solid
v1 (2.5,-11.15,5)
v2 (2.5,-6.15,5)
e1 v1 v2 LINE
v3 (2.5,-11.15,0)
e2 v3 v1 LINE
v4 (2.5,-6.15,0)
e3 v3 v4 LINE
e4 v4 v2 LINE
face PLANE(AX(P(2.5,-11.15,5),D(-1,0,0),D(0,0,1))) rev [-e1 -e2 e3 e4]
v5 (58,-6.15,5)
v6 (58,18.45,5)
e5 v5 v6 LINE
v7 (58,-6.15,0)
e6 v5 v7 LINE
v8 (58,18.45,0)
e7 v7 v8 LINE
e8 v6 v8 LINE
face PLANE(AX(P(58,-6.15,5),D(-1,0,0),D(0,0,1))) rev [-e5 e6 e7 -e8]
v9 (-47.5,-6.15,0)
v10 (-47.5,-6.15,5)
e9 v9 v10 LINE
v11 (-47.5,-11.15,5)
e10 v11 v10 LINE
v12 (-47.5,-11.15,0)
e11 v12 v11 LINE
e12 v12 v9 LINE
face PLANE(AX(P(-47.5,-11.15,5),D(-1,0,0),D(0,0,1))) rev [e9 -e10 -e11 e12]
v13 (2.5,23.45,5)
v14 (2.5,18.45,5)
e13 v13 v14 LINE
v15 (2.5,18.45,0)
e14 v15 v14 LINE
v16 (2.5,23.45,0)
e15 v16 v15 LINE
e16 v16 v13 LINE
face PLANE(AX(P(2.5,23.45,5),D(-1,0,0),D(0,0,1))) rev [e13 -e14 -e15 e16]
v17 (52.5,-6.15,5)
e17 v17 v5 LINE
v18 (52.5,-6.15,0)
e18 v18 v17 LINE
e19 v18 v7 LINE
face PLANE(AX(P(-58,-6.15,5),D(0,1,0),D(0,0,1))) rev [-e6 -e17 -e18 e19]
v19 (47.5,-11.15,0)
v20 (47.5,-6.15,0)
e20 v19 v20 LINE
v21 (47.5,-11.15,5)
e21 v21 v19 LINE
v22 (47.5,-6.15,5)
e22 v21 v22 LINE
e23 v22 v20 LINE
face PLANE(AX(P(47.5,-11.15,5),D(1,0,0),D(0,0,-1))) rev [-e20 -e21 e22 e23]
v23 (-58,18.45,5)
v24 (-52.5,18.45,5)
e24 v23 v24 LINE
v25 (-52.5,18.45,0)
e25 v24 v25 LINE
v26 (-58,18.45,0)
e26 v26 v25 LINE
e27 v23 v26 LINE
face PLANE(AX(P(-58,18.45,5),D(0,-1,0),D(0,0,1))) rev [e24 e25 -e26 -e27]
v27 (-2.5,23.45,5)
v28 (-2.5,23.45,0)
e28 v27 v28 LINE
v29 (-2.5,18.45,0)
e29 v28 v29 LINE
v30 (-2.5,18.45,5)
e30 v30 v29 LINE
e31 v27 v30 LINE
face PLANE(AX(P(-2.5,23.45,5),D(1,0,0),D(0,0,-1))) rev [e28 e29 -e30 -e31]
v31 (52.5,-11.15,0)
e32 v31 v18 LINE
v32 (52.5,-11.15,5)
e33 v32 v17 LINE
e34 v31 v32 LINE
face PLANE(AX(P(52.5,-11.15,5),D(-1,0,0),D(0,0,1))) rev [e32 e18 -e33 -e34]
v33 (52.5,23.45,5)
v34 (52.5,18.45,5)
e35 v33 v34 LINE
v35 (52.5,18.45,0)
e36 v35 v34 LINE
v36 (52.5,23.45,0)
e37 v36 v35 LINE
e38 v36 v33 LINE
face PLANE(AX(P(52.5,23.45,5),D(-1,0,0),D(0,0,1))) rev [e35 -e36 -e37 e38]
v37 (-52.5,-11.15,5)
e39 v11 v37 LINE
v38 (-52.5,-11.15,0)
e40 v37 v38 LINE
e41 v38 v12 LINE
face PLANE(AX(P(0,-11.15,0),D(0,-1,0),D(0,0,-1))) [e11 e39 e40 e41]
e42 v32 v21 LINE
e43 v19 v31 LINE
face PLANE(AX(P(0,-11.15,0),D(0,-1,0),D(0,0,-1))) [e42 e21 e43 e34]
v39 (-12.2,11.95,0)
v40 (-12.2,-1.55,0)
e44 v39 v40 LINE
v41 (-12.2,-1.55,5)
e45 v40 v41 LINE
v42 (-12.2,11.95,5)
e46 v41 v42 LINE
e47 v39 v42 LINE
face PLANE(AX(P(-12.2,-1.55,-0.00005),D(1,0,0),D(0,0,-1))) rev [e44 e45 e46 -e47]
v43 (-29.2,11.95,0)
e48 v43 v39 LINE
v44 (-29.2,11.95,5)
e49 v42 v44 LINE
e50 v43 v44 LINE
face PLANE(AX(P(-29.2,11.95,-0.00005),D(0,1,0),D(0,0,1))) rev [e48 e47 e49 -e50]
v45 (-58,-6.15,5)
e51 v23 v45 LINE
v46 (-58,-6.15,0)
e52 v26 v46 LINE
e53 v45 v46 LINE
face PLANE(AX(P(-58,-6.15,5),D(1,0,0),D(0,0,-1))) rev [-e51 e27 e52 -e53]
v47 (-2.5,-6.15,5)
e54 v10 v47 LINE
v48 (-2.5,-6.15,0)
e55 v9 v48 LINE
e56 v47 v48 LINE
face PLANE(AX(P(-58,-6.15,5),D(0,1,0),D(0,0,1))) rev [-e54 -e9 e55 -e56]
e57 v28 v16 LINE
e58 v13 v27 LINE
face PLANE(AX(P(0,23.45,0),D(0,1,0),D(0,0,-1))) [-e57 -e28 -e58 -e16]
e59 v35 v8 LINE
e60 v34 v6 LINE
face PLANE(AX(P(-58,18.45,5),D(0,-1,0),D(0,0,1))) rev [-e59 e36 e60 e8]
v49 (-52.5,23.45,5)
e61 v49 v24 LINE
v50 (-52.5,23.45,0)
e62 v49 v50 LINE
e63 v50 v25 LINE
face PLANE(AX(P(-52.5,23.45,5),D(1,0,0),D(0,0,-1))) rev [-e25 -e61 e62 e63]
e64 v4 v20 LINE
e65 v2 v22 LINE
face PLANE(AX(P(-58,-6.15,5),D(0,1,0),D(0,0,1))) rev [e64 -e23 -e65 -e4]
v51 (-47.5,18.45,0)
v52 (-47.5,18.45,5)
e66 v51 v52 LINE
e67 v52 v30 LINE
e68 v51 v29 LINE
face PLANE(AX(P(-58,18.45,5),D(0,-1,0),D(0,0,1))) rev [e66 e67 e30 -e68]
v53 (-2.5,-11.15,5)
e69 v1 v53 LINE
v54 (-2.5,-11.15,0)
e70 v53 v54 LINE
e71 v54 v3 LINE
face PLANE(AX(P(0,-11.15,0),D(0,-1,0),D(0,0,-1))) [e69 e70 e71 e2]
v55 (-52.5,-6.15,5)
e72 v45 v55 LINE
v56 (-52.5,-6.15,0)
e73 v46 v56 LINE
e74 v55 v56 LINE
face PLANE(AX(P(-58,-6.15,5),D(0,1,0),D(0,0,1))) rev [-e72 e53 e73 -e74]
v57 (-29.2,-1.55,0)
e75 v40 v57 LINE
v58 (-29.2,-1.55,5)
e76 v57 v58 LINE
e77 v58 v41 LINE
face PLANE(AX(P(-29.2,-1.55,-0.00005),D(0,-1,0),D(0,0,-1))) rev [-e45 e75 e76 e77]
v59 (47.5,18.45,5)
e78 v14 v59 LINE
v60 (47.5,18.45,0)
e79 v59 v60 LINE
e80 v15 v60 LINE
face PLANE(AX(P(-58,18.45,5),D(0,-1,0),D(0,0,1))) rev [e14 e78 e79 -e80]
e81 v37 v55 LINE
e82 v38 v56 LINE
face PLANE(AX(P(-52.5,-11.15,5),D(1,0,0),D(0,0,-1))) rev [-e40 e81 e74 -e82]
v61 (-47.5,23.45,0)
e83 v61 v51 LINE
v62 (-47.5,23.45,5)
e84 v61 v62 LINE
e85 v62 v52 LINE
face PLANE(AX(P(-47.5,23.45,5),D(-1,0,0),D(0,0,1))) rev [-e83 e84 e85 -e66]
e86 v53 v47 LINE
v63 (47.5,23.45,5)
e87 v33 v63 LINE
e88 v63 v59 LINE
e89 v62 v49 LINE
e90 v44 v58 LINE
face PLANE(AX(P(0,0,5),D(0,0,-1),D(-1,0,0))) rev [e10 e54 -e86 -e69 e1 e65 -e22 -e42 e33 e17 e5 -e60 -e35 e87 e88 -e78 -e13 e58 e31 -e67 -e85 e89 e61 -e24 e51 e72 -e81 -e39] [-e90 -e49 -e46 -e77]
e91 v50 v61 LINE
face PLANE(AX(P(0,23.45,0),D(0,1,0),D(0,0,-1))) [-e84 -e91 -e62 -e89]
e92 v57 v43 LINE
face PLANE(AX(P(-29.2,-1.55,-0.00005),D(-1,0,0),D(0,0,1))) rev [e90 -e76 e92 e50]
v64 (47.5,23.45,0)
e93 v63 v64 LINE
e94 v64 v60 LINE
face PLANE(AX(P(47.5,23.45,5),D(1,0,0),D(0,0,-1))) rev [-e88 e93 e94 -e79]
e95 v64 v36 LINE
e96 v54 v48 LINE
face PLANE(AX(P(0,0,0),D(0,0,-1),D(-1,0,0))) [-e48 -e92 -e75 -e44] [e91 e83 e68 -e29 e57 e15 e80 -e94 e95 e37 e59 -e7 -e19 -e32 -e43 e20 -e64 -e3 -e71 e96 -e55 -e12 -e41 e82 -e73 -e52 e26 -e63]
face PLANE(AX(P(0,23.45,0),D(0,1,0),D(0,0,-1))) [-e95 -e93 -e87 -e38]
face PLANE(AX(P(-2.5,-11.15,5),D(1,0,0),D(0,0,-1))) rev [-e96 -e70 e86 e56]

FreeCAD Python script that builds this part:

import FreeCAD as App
import Part
import Sketcher

V = App.Vector
Q = App.Units.Quantity


def add_polygon(sketch, points):
    """Adds a closed chain of lines whose ends are joined by coincident constraints."""
    first, n = sketch.GeometryCount, len(points)
    for a, b in zip(points, points[1:] + points[:1]):
        sketch.addGeometry(Part.LineSegment(App.Vector(*a, 0), App.Vector(*b, 0)), False)
    for i in range(n):
        sketch.addConstraint(Sketcher.Constraint("Coincident", first + i, 2, first + (i + 1) % n, 1))

doc = App.newDocument("Part")
body = doc.addObject("PartDesign::Body", "Body")

# Sketch on XY plane
sketch1 = doc.addObject("Sketcher::SketchObject", "Sketch")
body.addObject(sketch1)
sketch1.AttachmentSupport = (doc.XY_Plane, [""])
sketch1.MapMode = "FlatFace"
add_polygon(sketch1, [(-58, 6.15), (-58, -6.15), (58, -6.15), (58, 6.15)])  # lines 0-3
sketch1.addConstraint(Sketcher.Constraint("Vertical", 0))
sketch1.addConstraint(Sketcher.Constraint("Horizontal", 1))
sketch1.addConstraint(Sketcher.Constraint("Vertical", 2))
sketch1.addConstraint(Sketcher.Constraint("Horizontal", 3))
sketch1.addConstraint(Sketcher.Constraint("Symmetric", 0, 2, 2, 2, -1, 1))
sketch1.addConstraint(Sketcher.Constraint("DistanceX", 1, 1, 1, 2, Q("116 mm")))
sketch1.addConstraint(Sketcher.Constraint("DistanceY", 0, 2, 0, 1, Q("12.3 mm")))
pad1 = doc.addObject("PartDesign::Pad", "Pad")
body.addObject(pad1)
pad1.Profile = sketch1
pad1.Length = 5

# Sketch on XZ plane
sketch2 = doc.addObject("Sketcher::SketchObject", "Sketch001")
body.addObject(sketch2)
sketch2.AttachmentSupport = (doc.XZ_Plane, [""])
sketch2.MapMode = "FlatFace"
sketch2.AttachmentOffset = App.Placement(V(0, 0, 6.15), App.Rotation())
add_polygon(sketch2, [(-52.5, 5), (-52.5, 0), (-47.5, 0), (-47.5, 5)])  # lines 0-3
add_polygon(sketch2, [(-2.5, 5), (-2.5, 0), (2.5, 0), (2.5, 5)])  # lines 4-7
add_polygon(sketch2, [(47.5, 5), (47.5, 0), (52.5, 0), (52.5, 5)])  # lines 8-11
sketch2.addConstraint(Sketcher.Constraint("Vertical", 0))
sketch2.addConstraint(Sketcher.Constraint("Horizontal", 1))
sketch2.addConstraint(Sketcher.Constraint("Vertical", 2))
sketch2.addConstraint(Sketcher.Constraint("Horizontal", 3))
sketch2.addConstraint(Sketcher.Constraint("Vertical", 4))
sketch2.addConstraint(Sketcher.Constraint("Horizontal", 5))
sketch2.addConstraint(Sketcher.Constraint("Vertical", 6))
sketch2.addConstraint(Sketcher.Constraint("Horizontal", 7))
sketch2.addConstraint(Sketcher.Constraint("Vertical", 8))
sketch2.addConstraint(Sketcher.Constraint("Horizontal", 9))
sketch2.addConstraint(Sketcher.Constraint("Vertical", 10))
sketch2.addConstraint(Sketcher.Constraint("Horizontal", 11))
sketch2.addConstraint(Sketcher.Constraint("Symmetric", 4, 2, 5, 2, -1, 1))
sketch2.addConstraint(Sketcher.Constraint("Symmetric", 1, 2, 8, 2, -1, 1))
sketch2.addConstraint(Sketcher.Constraint("Symmetric", 0, 2, 9, 2, -2))
sketch2.addConstraint(Sketcher.Constraint("Horizontal", 3, 2, 6, 2))
sketch2.addConstraint(Sketcher.Constraint("Horizontal", 7, 2, 10, 2))
sketch2.addConstraint(Sketcher.Constraint("Equal", 3, 5))
sketch2.addConstraint(Sketcher.Constraint("Equal", 11, 0))
sketch2.addConstraint(Sketcher.Constraint("DistanceX", 1, 1, 1, 2, Q("5 mm")))
sketch2.addConstraint(Sketcher.Constraint("DistanceX", 1, 2, 4, 2, Q("45 mm")))
pad2 = doc.addObject("PartDesign::Pad", "Pad001")
body.addObject(pad2)
pad2.Profile = sketch2
pad2.Length = 5
body2 = doc.addObject("PartDesign::Body", "Body001")
doc.recompute()

body2.BaseFeature = body
doc.recompute()

mirroring = doc.addObject("Part::Mirroring", "Mirroring")
mirroring.Source = body
mirroring.Base = V(-58, 6.15, 5)
mirroring.Normal = V(0, -1, 0)
body3 = doc.addObject("PartDesign::Body", "Body002")
body3.BaseFeature = mirroring
boolean = doc.addObject("PartDesign::Boolean", "Boolean")
body2.addObject(boolean)
boolean.Type = "Fuse"
boolean.addObjects([body3])
doc.recompute()

# Sketch on XY plane
sketch3 = doc.addObject("Sketcher::SketchObject", "Sketch002")
body2.addObject(sketch3)
sketch3.AttachmentSupport = (doc.getObject("XY_Plane001"), [""])
sketch3.MapMode = "FlatFace"
sketch3.AttachmentOffset = App.Placement(V(0, 0, 5), App.Rotation())
add_polygon(sketch3, [(-29.2, 11.95), (-29.2, -1.55), (-12.2, -1.55), (-12.2, 11.95)])  # lines 0-3
sketch3.addConstraint(Sketcher.Constraint("Vertical", 0))
sketch3.addConstraint(Sketcher.Constraint("Horizontal", 1))
sketch3.addConstraint(Sketcher.Constraint("Vertical", 2))
sketch3.addConstraint(Sketcher.Constraint("Horizontal", 3))
sketch3.addConstraint(Sketcher.Constraint("DistanceX", 1, 1, 1, 2, Q("17 mm")))
sketch3.addConstraint(Sketcher.Constraint("DistanceY", 0, 2, 0, 1, Q("13.5 mm")))
sketch3.addConstraint(Sketcher.Constraint("DistanceX", 0, 2, -1, 1, Q("29.2 mm")))
sketch3.addConstraint(Sketcher.Constraint("DistanceY", 0, 2, -1, 1, Q("1.55 mm")))
pocket1 = doc.addObject("PartDesign::Pocket", "Pocket")
body2.addObject(pocket1)
pocket1.Profile = sketch3
pocket1.Type = "ThroughAll"
mirroring.Visibility = False

doc.recompute()
